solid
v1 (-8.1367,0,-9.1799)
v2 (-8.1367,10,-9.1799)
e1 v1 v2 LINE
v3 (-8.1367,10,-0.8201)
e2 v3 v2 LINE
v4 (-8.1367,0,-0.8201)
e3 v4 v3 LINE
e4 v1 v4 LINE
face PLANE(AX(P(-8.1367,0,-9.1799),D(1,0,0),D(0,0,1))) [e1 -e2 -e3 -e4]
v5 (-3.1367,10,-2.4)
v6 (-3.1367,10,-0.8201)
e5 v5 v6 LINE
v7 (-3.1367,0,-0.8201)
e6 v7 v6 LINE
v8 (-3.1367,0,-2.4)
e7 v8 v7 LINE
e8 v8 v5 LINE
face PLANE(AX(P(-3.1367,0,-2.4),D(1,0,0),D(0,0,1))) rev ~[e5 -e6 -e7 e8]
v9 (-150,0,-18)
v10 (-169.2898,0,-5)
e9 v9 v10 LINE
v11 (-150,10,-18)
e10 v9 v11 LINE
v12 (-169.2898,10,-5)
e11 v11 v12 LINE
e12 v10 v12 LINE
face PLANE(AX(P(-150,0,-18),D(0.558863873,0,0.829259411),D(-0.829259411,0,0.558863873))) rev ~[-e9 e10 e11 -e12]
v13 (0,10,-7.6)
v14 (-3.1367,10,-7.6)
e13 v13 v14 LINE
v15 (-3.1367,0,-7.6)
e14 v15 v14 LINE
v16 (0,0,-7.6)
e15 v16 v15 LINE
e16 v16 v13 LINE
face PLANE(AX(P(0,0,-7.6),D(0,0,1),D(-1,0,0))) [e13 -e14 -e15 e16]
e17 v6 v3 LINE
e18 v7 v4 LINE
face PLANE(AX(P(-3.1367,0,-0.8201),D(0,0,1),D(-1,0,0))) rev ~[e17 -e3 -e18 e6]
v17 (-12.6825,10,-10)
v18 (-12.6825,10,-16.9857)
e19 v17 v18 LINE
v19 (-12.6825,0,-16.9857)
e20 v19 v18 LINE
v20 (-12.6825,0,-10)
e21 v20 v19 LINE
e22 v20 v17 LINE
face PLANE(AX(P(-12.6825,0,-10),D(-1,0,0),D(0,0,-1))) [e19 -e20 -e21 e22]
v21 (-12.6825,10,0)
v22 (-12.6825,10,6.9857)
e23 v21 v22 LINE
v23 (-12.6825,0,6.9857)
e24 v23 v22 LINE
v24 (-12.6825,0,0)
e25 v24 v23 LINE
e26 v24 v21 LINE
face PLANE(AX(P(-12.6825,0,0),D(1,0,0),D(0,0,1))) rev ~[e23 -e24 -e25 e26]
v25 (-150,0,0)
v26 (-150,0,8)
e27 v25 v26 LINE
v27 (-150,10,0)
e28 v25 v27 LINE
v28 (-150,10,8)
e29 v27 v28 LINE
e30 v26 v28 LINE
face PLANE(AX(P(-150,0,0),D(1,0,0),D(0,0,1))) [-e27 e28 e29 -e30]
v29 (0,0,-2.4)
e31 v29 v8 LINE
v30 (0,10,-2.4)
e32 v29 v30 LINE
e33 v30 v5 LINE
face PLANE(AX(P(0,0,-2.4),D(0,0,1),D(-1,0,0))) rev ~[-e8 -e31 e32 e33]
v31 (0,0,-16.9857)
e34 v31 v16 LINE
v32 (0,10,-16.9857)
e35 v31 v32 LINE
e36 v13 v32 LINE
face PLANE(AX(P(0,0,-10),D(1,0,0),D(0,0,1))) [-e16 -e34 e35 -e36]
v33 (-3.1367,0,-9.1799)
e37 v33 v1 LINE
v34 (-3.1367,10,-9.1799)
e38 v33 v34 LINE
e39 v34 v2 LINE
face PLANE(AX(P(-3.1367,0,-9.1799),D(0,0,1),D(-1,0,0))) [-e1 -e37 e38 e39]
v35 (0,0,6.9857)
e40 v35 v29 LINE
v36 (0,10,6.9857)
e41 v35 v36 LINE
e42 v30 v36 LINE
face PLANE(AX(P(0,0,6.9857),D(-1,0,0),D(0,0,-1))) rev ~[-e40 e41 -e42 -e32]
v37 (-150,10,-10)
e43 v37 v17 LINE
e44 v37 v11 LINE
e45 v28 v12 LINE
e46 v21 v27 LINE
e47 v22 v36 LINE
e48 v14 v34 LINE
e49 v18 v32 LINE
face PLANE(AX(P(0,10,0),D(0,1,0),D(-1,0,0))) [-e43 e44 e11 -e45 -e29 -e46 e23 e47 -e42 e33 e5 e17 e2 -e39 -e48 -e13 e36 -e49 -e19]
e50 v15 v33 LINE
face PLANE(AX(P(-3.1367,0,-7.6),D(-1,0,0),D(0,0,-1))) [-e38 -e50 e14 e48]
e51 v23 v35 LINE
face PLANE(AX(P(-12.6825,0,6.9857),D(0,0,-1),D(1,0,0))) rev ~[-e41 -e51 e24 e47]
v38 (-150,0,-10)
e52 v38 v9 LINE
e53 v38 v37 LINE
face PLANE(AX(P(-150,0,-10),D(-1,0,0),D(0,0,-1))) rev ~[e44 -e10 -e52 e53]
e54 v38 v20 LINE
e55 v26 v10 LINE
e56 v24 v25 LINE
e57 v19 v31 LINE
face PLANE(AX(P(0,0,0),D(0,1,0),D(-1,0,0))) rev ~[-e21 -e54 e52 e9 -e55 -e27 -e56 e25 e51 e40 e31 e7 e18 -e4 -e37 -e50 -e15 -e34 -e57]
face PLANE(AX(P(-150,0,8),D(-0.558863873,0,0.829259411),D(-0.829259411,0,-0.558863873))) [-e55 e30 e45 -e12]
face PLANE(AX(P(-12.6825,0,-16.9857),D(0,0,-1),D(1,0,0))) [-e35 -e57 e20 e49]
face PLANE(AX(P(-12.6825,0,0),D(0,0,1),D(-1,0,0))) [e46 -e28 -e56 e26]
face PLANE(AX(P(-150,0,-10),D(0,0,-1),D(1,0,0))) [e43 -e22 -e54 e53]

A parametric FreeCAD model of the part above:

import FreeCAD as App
import Part
import Sketcher

V = App.Vector


def add_polygon(sketch, points):
    """Adds a closed chain of lines whose ends are joined by coincident constraints."""
    first, n = sketch.GeometryCount, len(points)
    for a, b in zip(points, points[1:] + points[:1]):
        sketch.addGeometry(Part.LineSegment(App.Vector(*a, 0), App.Vector(*b, 0)), False)
    for i in range(n):
        sketch.addConstraint(Sketcher.Constraint("Coincident", first + i, 2, first + (i + 1) % n, 1))

doc = App.newDocument("Part")
body = doc.addObject("PartDesign::Body", "Body")

# Sketch on XZ plane
sketch1 = body.newObject("Sketcher::SketchObject", "Sketch")
sketch1.AttachmentSupport = (doc.getObject("XZ_Plane"), [""])
sketch1.MapMode = "FlatFace"
add_polygon(sketch1, [(0, 7), (0, -2.4), (-3.1, -2.4), (-3.1, -0.8), (-8.1, -0.8), (-8.1, -9.2), (-3.1, -9.2), (-3.1, -7.6), (0, -7.6), (0, -17), (-12.7, -17), (-12.7, -10), (-150, -10), (-150, -18), (-169.3, -5), (-150, 8), (-150, 0), (-12.7, 0), (-12.7, 7)])  # lines 0-18
sketch1.addConstraint([
    Sketcher.Constraint("Vertical", 0),
    Sketcher.Constraint("Horizontal", 1),
    Sketcher.Constraint("Vertical", 2),
    Sketcher.Constraint("Horizontal", 3),
    Sketcher.Constraint("Vertical", 4),
    Sketcher.Constraint("Horizontal", 5),
    Sketcher.Constraint("Vertical", 6),
    Sketcher.Constraint("Horizontal", 7),
    Sketcher.Constraint("Vertical", 8),
    Sketcher.Constraint("Horizontal", 9),
    Sketcher.Constraint("Vertical", 10),
    Sketcher.Constraint("Horizontal", 11),
    Sketcher.Constraint("Vertical", 12),
    Sketcher.Constraint("Vertical", 15),
    Sketcher.Constraint("Horizontal", 16),
    Sketcher.Constraint("Vertical", 17),
    Sketcher.Constraint("Horizontal", 18),
    Sketcher.Constraint("PointOnObject", 0, 2, -2),
    Sketcher.Constraint("PointOnObject", 7, 2, -2),
    Sketcher.Constraint("PointOnObject", 15, 2, -1),
    Sketcher.Constraint("Vertical", 2, 2, 5, 2),
    Sketcher.Constraint("Vertical", 12, 2, 14, 2),
    Sketcher.Constraint("Vertical", 10, 2, 16, 2),
    Sketcher.Constraint("Equal", 2, 6),
    Sketcher.Constraint("Equal", 0, 8),
    Sketcher.Constraint("Equal", 12, 15),
    Sketcher.Constraint("Equal", 10, 17),
    Sketcher.Constraint("Equal", 13, 14),
    Sketcher.Constraint("DistanceX", 3, 2, 3, 1, 5.0),
    Sketcher.Constraint("DistanceY", 12, 2, 12, 1, 8.0),
    Sketcher.Constraint("DistanceY", 10, 2, -1, 1, 10.0),
    Sketcher.Constraint("DistanceX", 11, 2, -1, 1, 150.0),
    Sketcher.Constraint("DistanceY", 6, 2, 1, 2, 5.2),
    Sketcher.Constraint("DistanceY", 2, 1, 2, 2, 1.58),
    Sketcher.Constraint("DistanceX", 1, 2, 1, 1, 3.1367),
    Sketcher.Constraint("DistanceX", 9, 2, 9, 1, 12.6825),
    Sketcher.Constraint("DistanceY", 0, 2, 0, 1, 9.3857),
    Sketcher.Constraint("DistanceX", 13, 2, 3, 2, 161.153),
])
pad1 = body.newObject("PartDesign::Pad", "Pad")
pad1.Profile = sketch1
pad1.Length = 10
pad1.Reversed = True

doc.recompute()
